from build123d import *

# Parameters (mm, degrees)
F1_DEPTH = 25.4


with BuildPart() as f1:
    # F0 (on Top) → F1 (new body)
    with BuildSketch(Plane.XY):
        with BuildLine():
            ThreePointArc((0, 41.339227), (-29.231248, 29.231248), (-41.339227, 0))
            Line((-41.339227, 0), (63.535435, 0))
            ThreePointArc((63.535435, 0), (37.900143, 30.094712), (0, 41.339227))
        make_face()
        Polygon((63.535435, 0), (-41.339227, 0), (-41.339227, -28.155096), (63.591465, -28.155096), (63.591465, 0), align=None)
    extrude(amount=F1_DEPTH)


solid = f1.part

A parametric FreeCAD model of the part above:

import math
import FreeCAD as App
import Part
import Sketcher
from FreeCAD import Vector
Q = App.Units.Quantity

doc = App.newDocument("Part")
body = doc.addObject("PartDesign::Body", "Body")

sketch1 = doc.addObject("Sketcher::SketchObject", "Sketch")
body.addObject(sketch1)
sketch1.AttachmentSupport = (doc.XY_Plane, [""])
sketch1.MapMode = "FlatFace"
sketch1.addGeometry(Part.ArcOfCircle(Part.Circle(Vector(0, 0, 0), Vector(0, 0, 1), 41.34), math.radians(90), math.radians(180)), False)
sketch1.addGeometry(Part.LineSegment(Vector(-41.34, 0, 0), Vector(-41.34, -28.16, 0)), False)
sketch1.addGeometry(Part.LineSegment(Vector(-41.34, -28.16, 0), Vector(63.59, -28.16, 0)), False)
sketch1.addGeometry(Part.LineSegment(Vector(63.59, -28.16, 0), Vector(63.59, 0, 0)), False)
sketch1.addGeometry(Part.LineSegment(Vector(63.59, 0, 0), Vector(63.54, 0, 0)), False)
sketch1.addGeometry(Part.ArcOfCircle(Part.Circle(Vector(0, -28.16, 0), Vector(0, 0, 1), 69.49), math.radians(24), math.radians(90)), False)
sketch1.addConstraint(Sketcher.Constraint("Tangent", 0, 2, 1, 1))
sketch1.addConstraint(Sketcher.Constraint("Coincident", 1, 2, 2, 1))
sketch1.addConstraint(Sketcher.Constraint("Coincident", 2, 2, 3, 1))
sketch1.addConstraint(Sketcher.Constraint("Coincident", 3, 2, 4, 1))
sketch1.addConstraint(Sketcher.Constraint("Coincident", 4, 2, 5, 1))
sketch1.addConstraint(Sketcher.Constraint("Tangent", 5, 2, 0, 1))
sketch1.addConstraint(Sketcher.Constraint("Vertical", 1))
sketch1.addConstraint(Sketcher.Constraint("Horizontal", 2))
sketch1.addConstraint(Sketcher.Constraint("Vertical", 3))
sketch1.addConstraint(Sketcher.Constraint("Horizontal", 4))
sketch1.addConstraint(Sketcher.Constraint("Coincident", 0, 3, -1, 1))
sketch1.addConstraint(Sketcher.Constraint("PointOnObject", 5, 3, -2))
sketch1.addConstraint(Sketcher.Constraint("PointOnObject", 3, 2, -1))
sketch1.addConstraint(Sketcher.Constraint("Horizontal", 5, 3, 1, 2))
sketch1.addConstraint(Sketcher.Constraint("Radius", 5, Q("69.494321 mm")))
sketch1.addConstraint(Sketcher.Constraint("Radius", 0, Q("41.339226 mm")))
sketch1.addConstraint(Sketcher.Constraint("DistanceX", 2, 1, 2, 2, Q("104.930692 mm")))
pad1 = doc.addObject("PartDesign::Pad", "Pad")
body.addObject(pad1)
pad1.Profile = sketch1
pad1.Length = Q("1 in")

doc.recompute()
